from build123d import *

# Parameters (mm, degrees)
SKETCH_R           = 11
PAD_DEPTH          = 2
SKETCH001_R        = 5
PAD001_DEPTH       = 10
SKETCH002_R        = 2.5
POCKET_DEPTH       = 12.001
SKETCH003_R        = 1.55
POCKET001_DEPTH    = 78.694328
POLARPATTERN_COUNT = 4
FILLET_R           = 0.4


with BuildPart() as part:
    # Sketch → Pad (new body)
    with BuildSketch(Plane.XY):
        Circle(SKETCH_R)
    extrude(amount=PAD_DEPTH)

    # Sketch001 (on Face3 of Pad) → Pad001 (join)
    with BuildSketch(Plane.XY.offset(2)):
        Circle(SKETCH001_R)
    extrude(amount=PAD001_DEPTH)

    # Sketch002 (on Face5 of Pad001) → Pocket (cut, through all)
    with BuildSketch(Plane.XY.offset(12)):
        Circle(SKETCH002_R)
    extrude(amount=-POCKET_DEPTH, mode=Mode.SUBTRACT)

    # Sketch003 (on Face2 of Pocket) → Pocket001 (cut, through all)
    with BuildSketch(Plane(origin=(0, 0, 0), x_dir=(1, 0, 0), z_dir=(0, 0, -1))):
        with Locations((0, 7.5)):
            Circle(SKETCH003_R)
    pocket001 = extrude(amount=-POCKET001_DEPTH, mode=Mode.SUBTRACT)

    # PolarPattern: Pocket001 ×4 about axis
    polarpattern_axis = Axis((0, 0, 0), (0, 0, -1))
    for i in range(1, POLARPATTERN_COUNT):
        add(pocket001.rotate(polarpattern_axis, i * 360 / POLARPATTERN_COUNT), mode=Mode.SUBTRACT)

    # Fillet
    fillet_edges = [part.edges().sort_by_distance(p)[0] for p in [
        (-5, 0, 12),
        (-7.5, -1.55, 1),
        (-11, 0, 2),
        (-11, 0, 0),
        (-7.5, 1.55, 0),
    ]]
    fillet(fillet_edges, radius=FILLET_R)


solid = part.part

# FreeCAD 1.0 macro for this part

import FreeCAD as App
import Part
import Sketcher


def edges_at(feature, points):
    """Names of the edges that pass closest to the given points."""
    edges = feature.Shape.Edges
    near = lambda p: min(range(len(edges)), key=lambda i: edges[i].distToShape(Part.Vertex(*p))[0])
    return sorted({f"Edge{near(p) + 1}" for p in points})

doc = App.newDocument("Part")
params = doc.addObject("Spreadsheet::Sheet", "Params")
for row, (alias, value) in enumerate([
    ("sketch1_diameter", "22 mm"),
    ("pad1_length", "2 mm"),
    ("sketch2_diameter", "10 mm"),
    ("pad2_length", "10 mm"),
    ("sketch3_diameter", "5 mm"),
    ("sketch4_diameter", "3.1 mm"),
    ("fillet_radius", "0.4 mm"),
], start=1):
    params.set(f"A{row}", alias)
    params.set(f"B{row}", "=" + value)
    params.setAlias(f"B{row}", alias)

body = doc.addObject("PartDesign::Body", "Body")

# Sketch on XY plane
sketch1 = body.newObject("Sketcher::SketchObject", "Sketch")
sketch1.AttachmentSupport = (doc.getObject("XY_Plane"), [""])
sketch1.MapMode = "FlatFace"
sketch1.addGeometry(Part.Circle(App.Vector(0, 0, 0), App.Vector(0, 0, 1), 11), False)
sketch1.addConstraint(Sketcher.Constraint("Coincident", 0, 3, -1, 1))
sketch1.addConstraint(Sketcher.Constraint("Diameter", 0, 22.0))
sketch1.setExpression("Constraints[1]", "Params.sketch1_diameter")
pad1 = body.newObject("PartDesign::Pad", "Pad")
pad1.Profile = sketch1
pad1.setExpression("Length", "Params.pad1_length")

# Sketch on XY plane
sketch2 = body.newObject("Sketcher::SketchObject", "Sketch001")
sketch2.AttachmentSupport = (doc.getObject("XY_Plane"), [""])
sketch2.MapMode = "FlatFace"
sketch2.AttachmentOffset = App.Placement(App.Vector(0, 0, 2), App.Rotation())
sketch2.addGeometry(Part.Circle(App.Vector(0, 0, 0), App.Vector(0, 0, 1), 5), False)
sketch2.addConstraint(Sketcher.Constraint("Coincident", 0, 3, -1, 1))
sketch2.addConstraint(Sketcher.Constraint("Diameter", 0, 10.0))
sketch2.setExpression("Constraints[1]", "Params.sketch2_diameter")
pad2 = body.newObject("PartDesign::Pad", "Pad001")
pad2.Profile = sketch2
pad2.setExpression("Length", "Params.pad2_length")

# Sketch on XY plane
sketch3 = body.newObject("Sketcher::SketchObject", "Sketch002")
sketch3.AttachmentSupport = (doc.getObject("XY_Plane"), [""])
sketch3.MapMode = "FlatFace"
sketch3.AttachmentOffset = App.Placement(App.Vector(0, 0, 12), App.Rotation())
sketch3.addGeometry(Part.Circle(App.Vector(0, 0, 0), App.Vector(0, 0, 1), 2.5), False)
sketch3.addConstraint(Sketcher.Constraint("Coincident", 0, 3, -1, 1))
sketch3.addConstraint(Sketcher.Constraint("Diameter", 0, 5.0))
sketch3.setExpression("Constraints[1]", "Params.sketch3_diameter")
pocket1 = body.newObject("PartDesign::Pocket", "Pocket")
pocket1.Profile = sketch3
pocket1.Type = "ThroughAll"

# Sketch on XY plane
sketch4 = body.newObject("Sketcher::SketchObject", "Sketch003")
sketch4.AttachmentSupport = (doc.getObject("XY_Plane"), [""])
sketch4.MapMode = "FlatFace"
sketch4.addGeometry(Part.Circle(App.Vector(0, -7.5, 0), App.Vector(0, 0, 1), 1.6), False)
sketch4.addConstraint(Sketcher.Constraint("PointOnObject", 0, 3, -2))
sketch4.addConstraint(Sketcher.Constraint("Diameter", 0, 3.1))
sketch4.addConstraint(Sketcher.Constraint("DistanceY", 0, 3, -1, 1, 7.5))
sketch4.setExpression("Constraints[1]", "Params.sketch4_diameter")
pocket2 = body.newObject("PartDesign::Pocket", "Pocket001")
pocket2.Profile = sketch4
pocket2.Type = "ThroughAll"
pocket2.Reversed = True
doc.recompute()

polarpattern = body.newObject("PartDesign::PolarPattern", "PolarPattern")
polarpattern.Originals = [pocket2]
polarpattern.Axis = (doc.getObject("Z_Axis"), [""])
polarpattern.Angle = 360
polarpattern.Occurrences = 4
body.Tip = polarpattern
doc.recompute()

fillet = body.newObject("PartDesign::Fillet", "Fillet")
fillet.Base = (polarpattern, edges_at(polarpattern, [
    (-5, 0, 12),
    (-7.5, -1.55, 1),
    (-11, 0, 2),
    (-11, 0, 0),
    (-7.5, 1.55, 0),
]))
fillet.setExpression("Radius", "Params.fillet_radius")

doc.recompute()
